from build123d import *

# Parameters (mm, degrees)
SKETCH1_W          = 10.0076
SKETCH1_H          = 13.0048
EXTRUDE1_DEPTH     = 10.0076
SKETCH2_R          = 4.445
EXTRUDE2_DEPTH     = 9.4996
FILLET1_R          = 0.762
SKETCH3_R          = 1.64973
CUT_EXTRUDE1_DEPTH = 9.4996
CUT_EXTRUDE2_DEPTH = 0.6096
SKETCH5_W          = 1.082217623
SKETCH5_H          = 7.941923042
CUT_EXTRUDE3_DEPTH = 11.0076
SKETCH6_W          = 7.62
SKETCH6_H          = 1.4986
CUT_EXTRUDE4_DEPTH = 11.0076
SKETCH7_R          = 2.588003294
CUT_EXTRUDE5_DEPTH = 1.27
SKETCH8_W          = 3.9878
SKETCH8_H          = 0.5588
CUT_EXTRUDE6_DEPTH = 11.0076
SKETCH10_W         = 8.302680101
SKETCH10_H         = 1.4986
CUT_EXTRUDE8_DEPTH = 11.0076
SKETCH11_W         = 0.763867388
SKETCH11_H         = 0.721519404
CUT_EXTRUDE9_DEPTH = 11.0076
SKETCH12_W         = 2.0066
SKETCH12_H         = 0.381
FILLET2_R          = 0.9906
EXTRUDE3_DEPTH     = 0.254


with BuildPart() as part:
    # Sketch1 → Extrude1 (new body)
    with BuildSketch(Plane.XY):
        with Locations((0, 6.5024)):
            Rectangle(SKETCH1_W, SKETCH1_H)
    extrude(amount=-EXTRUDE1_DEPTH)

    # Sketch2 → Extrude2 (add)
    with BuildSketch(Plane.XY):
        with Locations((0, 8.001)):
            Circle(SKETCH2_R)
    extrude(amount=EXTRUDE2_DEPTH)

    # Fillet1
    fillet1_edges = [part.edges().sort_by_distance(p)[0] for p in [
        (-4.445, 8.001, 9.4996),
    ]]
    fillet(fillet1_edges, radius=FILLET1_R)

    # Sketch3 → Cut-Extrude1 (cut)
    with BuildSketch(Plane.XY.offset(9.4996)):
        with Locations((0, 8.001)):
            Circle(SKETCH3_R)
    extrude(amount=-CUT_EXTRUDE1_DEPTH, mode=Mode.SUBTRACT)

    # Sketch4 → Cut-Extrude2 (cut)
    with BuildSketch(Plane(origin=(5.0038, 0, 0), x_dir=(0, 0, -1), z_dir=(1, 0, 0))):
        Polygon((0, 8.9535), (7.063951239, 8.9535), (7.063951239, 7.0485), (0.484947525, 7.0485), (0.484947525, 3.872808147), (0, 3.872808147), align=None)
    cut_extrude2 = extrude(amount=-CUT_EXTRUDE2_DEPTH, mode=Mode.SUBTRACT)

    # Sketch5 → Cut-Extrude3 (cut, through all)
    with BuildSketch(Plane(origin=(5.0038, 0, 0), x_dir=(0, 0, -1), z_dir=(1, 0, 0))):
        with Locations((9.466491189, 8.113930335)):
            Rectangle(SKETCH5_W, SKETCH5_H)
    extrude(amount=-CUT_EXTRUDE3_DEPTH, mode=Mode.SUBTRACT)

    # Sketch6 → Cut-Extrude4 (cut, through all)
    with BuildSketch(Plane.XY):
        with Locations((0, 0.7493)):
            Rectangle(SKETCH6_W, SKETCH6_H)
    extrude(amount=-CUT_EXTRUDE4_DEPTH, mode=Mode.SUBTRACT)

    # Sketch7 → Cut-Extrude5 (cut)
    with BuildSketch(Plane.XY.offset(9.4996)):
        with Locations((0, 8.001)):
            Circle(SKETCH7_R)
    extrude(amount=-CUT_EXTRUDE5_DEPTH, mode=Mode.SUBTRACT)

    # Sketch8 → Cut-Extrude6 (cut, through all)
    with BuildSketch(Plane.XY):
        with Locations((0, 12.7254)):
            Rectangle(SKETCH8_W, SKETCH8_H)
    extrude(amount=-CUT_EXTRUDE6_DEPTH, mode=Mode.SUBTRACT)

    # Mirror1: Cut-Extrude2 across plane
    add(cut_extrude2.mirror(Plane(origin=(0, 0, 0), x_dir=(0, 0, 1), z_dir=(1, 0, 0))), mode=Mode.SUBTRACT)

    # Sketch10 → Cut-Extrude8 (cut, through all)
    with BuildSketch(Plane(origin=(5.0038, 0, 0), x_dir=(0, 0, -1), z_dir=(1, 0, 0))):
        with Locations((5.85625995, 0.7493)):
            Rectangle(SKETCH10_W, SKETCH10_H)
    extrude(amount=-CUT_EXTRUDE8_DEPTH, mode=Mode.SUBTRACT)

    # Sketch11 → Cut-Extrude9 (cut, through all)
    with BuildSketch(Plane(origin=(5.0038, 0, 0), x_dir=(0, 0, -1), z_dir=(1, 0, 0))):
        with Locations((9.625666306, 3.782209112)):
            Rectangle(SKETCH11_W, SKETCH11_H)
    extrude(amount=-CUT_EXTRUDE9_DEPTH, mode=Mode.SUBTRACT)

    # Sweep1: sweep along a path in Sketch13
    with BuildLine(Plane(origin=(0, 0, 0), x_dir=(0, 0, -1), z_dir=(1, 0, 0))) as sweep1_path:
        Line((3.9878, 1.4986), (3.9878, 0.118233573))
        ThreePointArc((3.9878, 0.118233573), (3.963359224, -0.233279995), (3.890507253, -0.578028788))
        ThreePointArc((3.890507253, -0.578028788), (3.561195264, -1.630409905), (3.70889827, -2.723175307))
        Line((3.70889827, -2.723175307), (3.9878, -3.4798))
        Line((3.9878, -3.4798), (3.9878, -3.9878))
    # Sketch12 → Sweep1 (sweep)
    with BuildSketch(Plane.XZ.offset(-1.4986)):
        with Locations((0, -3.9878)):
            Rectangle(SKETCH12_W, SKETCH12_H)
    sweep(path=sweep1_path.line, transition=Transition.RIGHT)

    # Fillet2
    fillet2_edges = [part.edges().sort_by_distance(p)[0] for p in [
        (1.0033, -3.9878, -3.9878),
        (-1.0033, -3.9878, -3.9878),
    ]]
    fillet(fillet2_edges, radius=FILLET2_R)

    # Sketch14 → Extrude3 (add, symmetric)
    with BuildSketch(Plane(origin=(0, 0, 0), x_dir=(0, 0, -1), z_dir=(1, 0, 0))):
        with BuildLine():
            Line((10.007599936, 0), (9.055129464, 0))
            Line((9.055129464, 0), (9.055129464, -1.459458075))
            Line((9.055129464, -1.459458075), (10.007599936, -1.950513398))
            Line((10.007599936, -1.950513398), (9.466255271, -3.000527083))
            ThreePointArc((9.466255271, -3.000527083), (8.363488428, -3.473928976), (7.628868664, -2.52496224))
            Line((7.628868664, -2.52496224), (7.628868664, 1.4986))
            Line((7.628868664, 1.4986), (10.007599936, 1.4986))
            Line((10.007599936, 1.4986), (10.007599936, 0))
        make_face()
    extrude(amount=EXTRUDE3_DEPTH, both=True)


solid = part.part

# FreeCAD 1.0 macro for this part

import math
import FreeCAD as App
import Part
import Sketcher

V = App.Vector
Q = App.Units.Quantity


def edges_at(feature, points):
    """Names of the edges that pass closest to the given points."""
    edges = feature.Shape.Edges
    near = lambda p: min(range(len(edges)), key=lambda i: edges[i].distToShape(Part.Vertex(*p))[0])
    return sorted({f"Edge{near(p) + 1}" for p in points})

doc = App.newDocument("Part")
body = doc.addObject("PartDesign::Body", "Body")

# Sketch on XY plane
sketch1 = body.newObject("Sketcher::SketchObject", "Sketch")
sketch1.AttachmentSupport = (doc.getObject("XY_Plane"), [""])
sketch1.MapMode = "FlatFace"
sketch1.addGeometry([
    Part.LineSegment(V(-5, 13, 0), V(-5, 0, 0)),
    Part.LineSegment(V(-5, 0, 0), V(5, 0, 0)),
    Part.LineSegment(V(5, 0, 0), V(5, 13, 0)),
    Part.LineSegment(V(5, 13, 0), V(-5, 13, 0)),
], False)
sketch1.addConstraint([
    Sketcher.Constraint("Coincident", 0, 2, 1, 1),
    Sketcher.Constraint("Coincident", 1, 2, 2, 1),
    Sketcher.Constraint("Coincident", 2, 2, 3, 1),
    Sketcher.Constraint("Coincident", 3, 2, 0, 1),
    Sketcher.Constraint("Vertical", 0),
    Sketcher.Constraint("Horizontal", 1),
    Sketcher.Constraint("Vertical", 2),
    Sketcher.Constraint("Horizontal", 3),
    Sketcher.Constraint("Symmetric", 0, 2, 1, 2, -1, 1),
    Sketcher.Constraint("DistanceX", 1, 1, 1, 2, Q("0.394 in")),
    Sketcher.Constraint("DistanceY", 0, 2, 0, 1, Q("0.512 in")),
])
pad1 = body.newObject("PartDesign::Pad", "Pad")
pad1.Profile = sketch1
pad1.Length = Q("0.394 in")
pad1.Reversed = True

# Sketch on XY plane
sketch2 = body.newObject("Sketcher::SketchObject", "Sketch001")
sketch2.AttachmentSupport = (doc.getObject("XY_Plane"), [""])
sketch2.MapMode = "FlatFace"
sketch2.addGeometry(Part.Circle(V(0, 8, 0), V(0, 0, 1), 4.4), False)
sketch2.addConstraint([
    Sketcher.Constraint("PointOnObject", 0, 3, -2),
    Sketcher.Constraint("Diameter", 0, Q("0.35 in")),
    Sketcher.Constraint("DistanceY", -1, 1, 0, 3, Q("0.315 in")),
])
pad2 = body.newObject("PartDesign::Pad", "Pad001")
pad2.Profile = sketch2
pad2.Length = Q("0.374 in")
doc.recompute()

fillet = body.newObject("PartDesign::Fillet", "Fillet")
fillet.Base = (pad2, edges_at(pad2, [(-4.445, 8.001, 9.5)]))
fillet.Radius = Q("0.03 in")

# Sketch on XY plane
sketch3 = body.newObject("Sketcher::SketchObject", "Sketch002")
sketch3.AttachmentSupport = (doc.getObject("XY_Plane"), [""])
sketch3.MapMode = "FlatFace"
sketch3.AttachmentOffset = App.Placement(V(0, 0, 0.374 * 25.4), App.Rotation())
sketch3.addGeometry(Part.Circle(V(0, 8, 0), V(0, 0, 1), 1.6), False)
sketch3.addConstraint([
    Sketcher.Constraint("PointOnObject", 0, 3, -2),
    Sketcher.Constraint("Diameter", 0, Q("0.1299 in")),
    Sketcher.Constraint("DistanceY", -1, 1, 0, 3, Q("0.315 in")),
])
pocket1 = body.newObject("PartDesign::Pocket", "Pocket")
pocket1.Profile = sketch3
pocket1.Length = Q("0.374 in")

# Sketch on YZ plane
sketch4 = body.newObject("Sketcher::SketchObject", "Sketch003")
sketch4.AttachmentSupport = (doc.getObject("YZ_Plane"), [""])
sketch4.MapMode = "FlatFace"
sketch4.AttachmentOffset = App.Placement(V(0, 0, 0.197 * 25.4), App.Rotation())
sketch4.addGeometry([
    Part.LineSegment(V(8.95, -7.06, 0), V(8.95, 0, 0)),  # 0
    Part.LineSegment(V(8.95, 0, 0), V(3.87, 0, 0)),  # 1
    Part.LineSegment(V(3.87, 0, 0), V(3.87, -0.48, 0)),  # 2
    Part.LineSegment(V(3.87, -0.48, 0), V(7.05, -0.48, 0)),  # 3
    Part.LineSegment(V(7.05, -0.48, 0), V(7.05, -7.06, 0)),  # 4
    Part.LineSegment(V(7.05, -7.06, 0), V(8.95, -7.06, 0)),  # 5
], False)
sketch4.addConstraint([
    Sketcher.Constraint("Coincident", 0, 2, 1, 1),
    Sketcher.Constraint("Coincident", 1, 2, 2, 1),
    Sketcher.Constraint("Coincident", 2, 2, 3, 1),
    Sketcher.Constraint("Coincident", 3, 2, 4, 1),
    Sketcher.Constraint("Coincident", 4, 2, 5, 1),
    Sketcher.Constraint("Coincident", 5, 2, 0, 1),
    Sketcher.Constraint("Vertical", 0),
    Sketcher.Constraint("Horizontal", 1),
    Sketcher.Constraint("Vertical", 2),
    Sketcher.Constraint("Horizontal", 3),
    Sketcher.Constraint("Vertical", 4),
    Sketcher.Constraint("Horizontal", 5),
    Sketcher.Constraint("PointOnObject", 0, 2, -1),
    Sketcher.Constraint("DistanceX", 5, 1, 5, 2, Q("0.075 in")),
    Sketcher.Constraint("DistanceX", -1, 1, 0, 2, Q("0.3525 in")),
    Sketcher.Constraint("DistanceX", 1, 2, 1, 1, 5.080692),
    Sketcher.Constraint("DistanceY", 0, 1, 0, 2, 7.063951),
    Sketcher.Constraint("DistanceY", 2, 2, 2, 1, 0.484948),
])
pocket2 = body.newObject("PartDesign::Pocket", "Pocket001")
pocket2.Profile = sketch4
pocket2.Length = Q("0.024 in")

# Sketch on YZ plane
sketch5 = body.newObject("Sketcher::SketchObject", "Sketch004")
sketch5.AttachmentSupport = (doc.getObject("YZ_Plane"), [""])
sketch5.MapMode = "FlatFace"
sketch5.AttachmentOffset = App.Placement(V(0, 0, 0.197 * 25.4), App.Rotation())
sketch5.addGeometry([
    Part.LineSegment(V(12.1, -8.9, 0), V(4.1, -8.9, 0)),
    Part.LineSegment(V(4.1, -8.9, 0), V(4.1, -10, 0)),
    Part.LineSegment(V(4.1, -10, 0), V(12.1, -10, 0)),
    Part.LineSegment(V(12.1, -10, 0), V(12.1, -8.9, 0)),
], False)
sketch5.addConstraint([
    Sketcher.Constraint("Coincident", 0, 2, 1, 1),
    Sketcher.Constraint("Coincident", 1, 2, 2, 1),
    Sketcher.Constraint("Coincident", 2, 2, 3, 1),
    Sketcher.Constraint("Coincident", 3, 2, 0, 1),
    Sketcher.Constraint("Horizontal", 0),
    Sketcher.Constraint("Vertical", 1),
    Sketcher.Constraint("Horizontal", 2),
    Sketcher.Constraint("Vertical", 3),
    Sketcher.Constraint("DistanceY", 1, 2, -1, 1, Q("0.394 in")),
    Sketcher.Constraint("DistanceX", 0, 2, 0, 1, 7.941923),
    Sketcher.Constraint("DistanceY", 1, 2, 1, 1, 1.082218),
    Sketcher.Constraint("DistanceX", -1, 1, 0, 2, 4.142969),
])
pocket3 = body.newObject("PartDesign::Pocket", "Pocket002")
pocket3.Profile = sketch5
pocket3.Type = "ThroughAll"

# Sketch on XY plane
sketch6 = body.newObject("Sketcher::SketchObject", "Sketch005")
sketch6.AttachmentSupport = (doc.getObject("XY_Plane"), [""])
sketch6.MapMode = "FlatFace"
sketch6.addGeometry([
    Part.LineSegment(V(-3.8, 1.5, 0), V(-3.8, 0, 0)),
    Part.LineSegment(V(-3.8, 0, 0), V(3.8, 0, 0)),
    Part.LineSegment(V(3.8, 0, 0), V(3.8, 1.5, 0)),
    Part.LineSegment(V(3.8, 1.5, 0), V(-3.8, 1.5, 0)),
], False)
sketch6.addConstraint([
    Sketcher.Constraint("Coincident", 0, 2, 1, 1),
    Sketcher.Constraint("Coincident", 1, 2, 2, 1),
    Sketcher.Constraint("Coincident", 2, 2, 3, 1),
    Sketcher.Constraint("Coincident", 3, 2, 0, 1),
    Sketcher.Constraint("Vertical", 0),
    Sketcher.Constraint("Horizontal", 1),
    Sketcher.Constraint("Vertical", 2),
    Sketcher.Constraint("Horizontal", 3),
    Sketcher.Constraint("Symmetric", 0, 2, 1, 2, -1, 1),
    Sketcher.Constraint("DistanceX", 1, 1, 1, 2, Q("0.3 in")),
    Sketcher.Constraint("DistanceY", 0, 2, 0, 1, Q("0.059 in")),
])
pocket4 = body.newObject("PartDesign::Pocket", "Pocket003")
pocket4.Profile = sketch6
pocket4.Type = "ThroughAll"

# Sketch on XY plane
sketch7 = body.newObject("Sketcher::SketchObject", "Sketch006")
sketch7.AttachmentSupport = (doc.getObject("XY_Plane"), [""])
sketch7.MapMode = "FlatFace"
sketch7.AttachmentOffset = App.Placement(V(0, 0, 0.374 * 25.4), App.Rotation())
sketch7.addGeometry(Part.Circle(V(0, 8, 0), V(0, 0, 1), 2.6), False)
sketch7.addConstraint([
    Sketcher.Constraint("PointOnObject", 0, 3, -2),
    Sketcher.Constraint("DistanceY", -1, 1, 0, 3, Q("0.315 in")),
    Sketcher.Constraint("Diameter", 0, 5.176007),
])
pocket5 = body.newObject("PartDesign::Pocket", "Pocket004")
pocket5.Profile = sketch7
pocket5.Length = Q("0.05 in")

# Sketch on XY plane
sketch8 = body.newObject("Sketcher::SketchObject", "Sketch007")
sketch8.AttachmentSupport = (doc.getObject("XY_Plane"), [""])
sketch8.MapMode = "FlatFace"
sketch8.addGeometry([
    Part.LineSegment(V(-2, 13, 0), V(-2, 12.4, 0)),
    Part.LineSegment(V(-2, 12.4, 0), V(2, 12.4, 0)),
    Part.LineSegment(V(2, 12.4, 0), V(2, 13, 0)),
    Part.LineSegment(V(2, 13, 0), V(-2, 13, 0)),
], False)
sketch8.addConstraint([
    Sketcher.Constraint("Coincident", 0, 2, 1, 1),
    Sketcher.Constraint("Coincident", 1, 2, 2, 1),
    Sketcher.Constraint("Coincident", 2, 2, 3, 1),
    Sketcher.Constraint("Coincident", 3, 2, 0, 1),
    Sketcher.Constraint("Vertical", 0),
    Sketcher.Constraint("Horizontal", 1),
    Sketcher.Constraint("Vertical", 2),
    Sketcher.Constraint("Horizontal", 3),
    Sketcher.Constraint("DistanceX", 1, 1, 1, 2, Q("0.157 in")),
    Sketcher.Constraint("DistanceY", 0, 2, 0, 1, Q("0.022 in")),
    Sketcher.Constraint("DistanceY", -1, 1, 0, 2, Q("0.49 in")),
    Sketcher.Constraint("DistanceX", 0, 2, -1, 1, Q("0.0785 in")),
])
pocket6 = body.newObject("PartDesign::Pocket", "Pocket005")
pocket6.Profile = sketch8
pocket6.Type = "ThroughAll"
doc.recompute()

mirrored = body.newObject("PartDesign::Mirrored", "Mirrored")
mirrored.Originals = [pocket2]
mirrored.MirrorPlane = (doc.getObject("YZ_Plane"), [""])
body.Tip = mirrored

# Sketch on YZ plane
sketch9 = body.newObject("Sketcher::SketchObject", "Sketch008")
sketch9.AttachmentSupport = (doc.getObject("YZ_Plane"), [""])
sketch9.MapMode = "FlatFace"
sketch9.AttachmentOffset = App.Placement(V(0, 0, 0.197 * 25.4), App.Rotation())
sketch9.addGeometry([
    Part.LineSegment(V(1.5, -1.7, 0), V(0, -1.7, 0)),
    Part.LineSegment(V(0, -1.7, 0), V(0, -10, 0)),
    Part.LineSegment(V(0, -10, 0), V(1.5, -10, 0)),
    Part.LineSegment(V(1.5, -10, 0), V(1.5, -1.7, 0)),
], False)
sketch9.addConstraint([
    Sketcher.Constraint("Coincident", 0, 2, 1, 1),
    Sketcher.Constraint("Coincident", 1, 2, 2, 1),
    Sketcher.Constraint("Coincident", 2, 2, 3, 1),
    Sketcher.Constraint("Coincident", 3, 2, 0, 1),
    Sketcher.Constraint("Horizontal", 0),
    Sketcher.Constraint("Vertical", 1),
    Sketcher.Constraint("Horizontal", 2),
    Sketcher.Constraint("Vertical", 3),
    Sketcher.Constraint("PointOnObject", 0, 2, -2),
    Sketcher.Constraint("DistanceX", 0, 2, 0, 1, Q("0.059 in")),
    Sketcher.Constraint("DistanceY", 1, 2, -1, 1, Q("0.394 in")),
    Sketcher.Constraint("DistanceY", 1, 2, 1, 1, 8.30268),
])
pocket7 = body.newObject("PartDesign::Pocket", "Pocket006")
pocket7.Profile = sketch9
pocket7.Type = "ThroughAll"

# Sketch on YZ plane
sketch10 = body.newObject("Sketcher::SketchObject", "Sketch009")
sketch10.AttachmentSupport = (doc.getObject("YZ_Plane"), [""])
sketch10.MapMode = "FlatFace"
sketch10.AttachmentOffset = App.Placement(V(0, 0, 0.197 * 25.4), App.Rotation())
sketch10.addGeometry([
    Part.LineSegment(V(4.1, -9.2, 0), V(3.4, -9.2, 0)),
    Part.LineSegment(V(3.4, -9.2, 0), V(3.4, -10, 0)),
    Part.LineSegment(V(3.4, -10, 0), V(4.1, -10, 0)),
    Part.LineSegment(V(4.1, -10, 0), V(4.1, -9.2, 0)),
], False)
sketch10.addConstraint([
    Sketcher.Constraint("Coincident", 0, 2, 1, 1),
    Sketcher.Constraint("Coincident", 1, 2, 2, 1),
    Sketcher.Constraint("Coincident", 2, 2, 3, 1),
    Sketcher.Constraint("Coincident", 3, 2, 0, 1),
    Sketcher.Constraint("Horizontal", 0),
    Sketcher.Constraint("Vertical", 1),
    Sketcher.Constraint("Horizontal", 2),
    Sketcher.Constraint("Vertical", 3),
    Sketcher.Constraint("DistanceY", 1, 2, -1, 1, Q("0.394 in")),
    Sketcher.Constraint("DistanceX", 0, 2, 0, 1, 0.721519),
    Sketcher.Constraint("DistanceY", 1, 2, 1, 1, 0.763867),
    Sketcher.Constraint("DistanceX", -1, 1, 0, 2, 3.421449),
])
pocket8 = body.newObject("PartDesign::Pocket", "Pocket007")
pocket8.Profile = sketch10
pocket8.Type = "ThroughAll"

# Sketch on XZ plane
sketch11 = body.newObject("Sketcher::SketchObject", "Sketch010")
sketch11.AttachmentSupport = (doc.getObject("XZ_Plane"), [""])
sketch11.MapMode = "FlatFace"
sketch11.AttachmentOffset = App.Placement(V(0, 0, -0.059 * 25.4), App.Rotation())
sketch11.addGeometry([
    Part.LineSegment(V(-1, -3.8, 0), V(-1, -4.18, 0)),
    Part.LineSegment(V(-1, -4.18, 0), V(1, -4.18, 0)),
    Part.LineSegment(V(1, -4.18, 0), V(1, -3.8, 0)),
    Part.LineSegment(V(1, -3.8, 0), V(-1, -3.8, 0)),
], False)
sketch11.addConstraint([
    Sketcher.Constraint("Coincident", 0, 2, 1, 1),
    Sketcher.Constraint("Coincident", 1, 2, 2, 1),
    Sketcher.Constraint("Coincident", 2, 2, 3, 1),
    Sketcher.Constraint("Coincident", 3, 2, 0, 1),
    Sketcher.Constraint("Vertical", 0),
    Sketcher.Constraint("Horizontal", 1),
    Sketcher.Constraint("Vertical", 2),
    Sketcher.Constraint("Horizontal", 3),
    Sketcher.Constraint("DistanceX", 1, 1, 1, 2, Q("0.079 in")),
    Sketcher.Constraint("DistanceY", 0, 2, 0, 1, Q("0.015 in")),
    Sketcher.Constraint("DistanceX", 0, 2, -1, 1, Q("0.0395 in")),
    Sketcher.Constraint("DistanceY", 0, 2, -1, 1, Q("0.1645 in")),
])

# Sketch on YZ plane
sketch12 = body.newObject("Sketcher::SketchObject", "Sketch011")
sketch12.AttachmentSupport = (doc.getObject("YZ_Plane"), [""])
sketch12.MapMode = "FlatFace"
sketch12.addGeometry([
    Part.LineSegment(V(1.5, -4, 0), V(0.1, -4, 0)),  # 0
    Part.ArcOfCircle(Part.Circle(V(0.1, -1.4, 0), V(0, 0, 1), 2.5), math.radians(-105.91), math.radians(-90)),  # 1
    Part.ArcOfCircle(Part.Circle(V(-1.8, -6.1, 0), V(0, 0, 1), 2.5), math.radians(60), math.radians(110)),  # 2
    Part.LineSegment(V(-2.7, -3.7, 0), V(-3.5, -4, 0)),  # 3
    Part.LineSegment(V(-3.5, -4, 0), V(-4, -4, 0)),  # 4
], False)
sketch12.addConstraint([
    Sketcher.Constraint("Tangent", 0, 2, 1, 2),
    Sketcher.Constraint("Coincident", 1, 1, 2, 1),
    Sketcher.Constraint("Tangent", 2, 2, 3, 1),
    Sketcher.Constraint("Coincident", 3, 2, 4, 1),
    Sketcher.Constraint("Horizontal", 0),
    Sketcher.Constraint("Horizontal", 4),
    Sketcher.Constraint("Equal", 1, 2),
    Sketcher.Constraint("Horizontal", 0, 2, 3, 2),
    Sketcher.Constraint("Radius", 1, Q("0.1 in")),
    Sketcher.Constraint("DistanceX", 4, 2, 4, 1, Q("0.02 in")),
    Sketcher.Constraint("DistanceY", 1, 3, -1, 1, Q("0.057 in")),
    Sketcher.Constraint("DistanceX", -1, 1, 0, 1, Q("0.059 in")),
    Sketcher.Constraint("DistanceX", 3, 2, -1, 1, Q("0.137 in")),
    Sketcher.Constraint("DistanceY", 2, 2, -1, 1, 3.708898),
    Sketcher.Constraint("Distance", 3, 0.806391),
    Sketcher.Constraint("DistanceX", 0, 2, 0, 1, 1.380366),
])
doc.recompute()

additivepipe = body.newObject("PartDesign::AdditivePipe", "AdditivePipe")
additivepipe.Profile = sketch11
additivepipe.Spine = (sketch12, ["Edge1", "Edge2", "Edge3", "Edge4", "Edge5"])
additivepipe.Transition = "Right corner"
doc.recompute()

fillet2 = body.newObject("PartDesign::Fillet", "Fillet001")
fillet2.Base = (additivepipe, edges_at(additivepipe, [(1.003, -3.988, -3.988), (-1.003, -3.988, -3.988)]))
fillet2.Radius = Q("0.039 in")

# Sketch on YZ plane
sketch13 = body.newObject("Sketcher::SketchObject", "Sketch012")
sketch13.AttachmentSupport = (doc.getObject("YZ_Plane"), [""])
sketch13.MapMode = "FlatFace"
sketch13.addGeometry([
    Part.LineSegment(V(0, -9.1, 0), V(0, -10, 0)),  # 0
    Part.LineSegment(V(0, -10, 0), V(1.5, -10, 0)),  # 1
    Part.LineSegment(V(1.5, -10, 0), V(1.5, -7.6, 0)),  # 2
    Part.LineSegment(V(1.5, -7.6, 0), V(-2.5, -7.6, 0)),  # 3
    Part.ArcOfCircle(Part.Circle(V(-2.5, -8.6, 0), V(0, 0, 1), 1), math.radians(90), math.radians(241)),  # 4
    Part.LineSegment(V(-3, -9.5, 0), V(-2, -10, 0)),  # 5
    Part.LineSegment(V(-2, -10, 0), V(-1.5, -9.1, 0)),  # 6
    Part.LineSegment(V(-1.5, -9.1, 0), V(0, -9.1, 0)),  # 7
], False)
sketch13.addConstraint([
    Sketcher.Constraint("Coincident", 0, 2, 1, 1),
    Sketcher.Constraint("Coincident", 1, 2, 2, 1),
    Sketcher.Constraint("Coincident", 2, 2, 3, 1),
    Sketcher.Constraint("Tangent", 3, 2, 4, 1),
    Sketcher.Constraint("Coincident", 4, 2, 5, 1),
    Sketcher.Constraint("Coincident", 5, 2, 6, 1),
    Sketcher.Constraint("Coincident", 6, 2, 7, 1),
    Sketcher.Constraint("Coincident", 7, 2, 0, 1),
    Sketcher.Constraint("Vertical", 0),
    Sketcher.Constraint("Horizontal", 1),
    Sketcher.Constraint("Vertical", 2),
    Sketcher.Constraint("Horizontal", 3),
    Sketcher.Constraint("Horizontal", 7),
    Sketcher.Constraint("PointOnObject", 0, 2, -2),
    Sketcher.Constraint("Perpendicular", 5, 6),
    Sketcher.Constraint("Horizontal", 1, 2, 5, 2),
    Sketcher.Constraint("DistanceX", 1, 1, 1, 2, Q("0.059 in")),
    Sketcher.Constraint("DistanceY", 0, 2, -1, 1, Q("0.394 in")),
    Sketcher.Constraint("Radius", 4, 0.980238),
    Sketcher.Constraint("DistanceX", 7, 1, 7, 2, 1.459458),
    Sketcher.Constraint("DistanceY", 0, 2, 0, 1, 0.95247),
    Sketcher.Constraint("DistanceY", 2, 1, 2, 2, 2.378731),
    Sketcher.Constraint("DistanceX", 3, 2, 3, 1, 4.023562),
    Sketcher.Constraint("DistanceY", 4, 2, 4, 3, 0.857149),
])
pad3 = body.newObject("PartDesign::Pad", "Pad002")
pad3.Profile = sketch13
pad3.Length = Q("0.02 in")
pad3.Midplane = True

doc.recompute()
